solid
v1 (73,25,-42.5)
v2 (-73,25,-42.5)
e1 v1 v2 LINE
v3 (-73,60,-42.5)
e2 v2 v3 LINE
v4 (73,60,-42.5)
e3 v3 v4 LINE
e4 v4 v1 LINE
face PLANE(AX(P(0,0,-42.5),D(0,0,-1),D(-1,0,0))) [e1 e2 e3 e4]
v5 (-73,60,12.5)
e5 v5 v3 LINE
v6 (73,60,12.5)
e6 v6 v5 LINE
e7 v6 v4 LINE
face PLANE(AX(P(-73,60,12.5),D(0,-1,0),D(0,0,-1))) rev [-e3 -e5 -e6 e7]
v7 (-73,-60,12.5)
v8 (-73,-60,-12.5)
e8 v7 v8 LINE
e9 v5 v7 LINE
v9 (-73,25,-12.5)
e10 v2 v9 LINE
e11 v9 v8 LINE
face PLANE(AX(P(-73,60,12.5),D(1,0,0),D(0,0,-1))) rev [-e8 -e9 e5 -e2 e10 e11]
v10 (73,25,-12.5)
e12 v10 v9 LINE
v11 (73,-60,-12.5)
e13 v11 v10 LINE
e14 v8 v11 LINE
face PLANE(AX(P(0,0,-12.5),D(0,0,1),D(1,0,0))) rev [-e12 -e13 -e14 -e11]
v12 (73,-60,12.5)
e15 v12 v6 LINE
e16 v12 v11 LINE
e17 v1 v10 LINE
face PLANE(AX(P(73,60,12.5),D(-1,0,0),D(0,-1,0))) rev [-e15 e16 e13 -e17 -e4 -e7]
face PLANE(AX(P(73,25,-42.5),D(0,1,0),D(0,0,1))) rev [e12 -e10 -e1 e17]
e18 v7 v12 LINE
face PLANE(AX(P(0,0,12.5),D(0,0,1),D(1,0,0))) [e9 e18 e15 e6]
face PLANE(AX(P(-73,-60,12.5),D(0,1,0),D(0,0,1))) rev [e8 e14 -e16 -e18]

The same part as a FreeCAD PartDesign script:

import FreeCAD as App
import Part
import Sketcher

doc = App.newDocument("Part")
params = doc.addObject("Spreadsheet::Sheet", "Params")
for row, (alias, value) in enumerate([
    ("sketch1_width", "146 mm"),
    ("sketch1_height", "120 mm"),
    ("pad1_length", "25 mm"),
    ("sketch2_width", "146 mm"),
    ("sketch2_height", "35 mm"),
    ("pad2_length", "30 mm"),
], start=1):
    params.set(f"A{row}", alias)
    params.set(f"B{row}", "=" + value)
    params.setAlias(f"B{row}", alias)

body = doc.addObject("PartDesign::Body", "Body")

# Sketch on XY plane
sketch1 = body.newObject("Sketcher::SketchObject", "Sketch")
sketch1.AttachmentSupport = (doc.getObject("XY_Plane"), [""])
sketch1.MapMode = "FlatFace"
sketch1.addGeometry([
    Part.LineSegment(App.Vector(-73, 60, 0), App.Vector(-73, -60, 0)),
    Part.LineSegment(App.Vector(-73, -60, 0), App.Vector(73, -60, 0)),
    Part.LineSegment(App.Vector(73, -60, 0), App.Vector(73, 60, 0)),
    Part.LineSegment(App.Vector(73, 60, 0), App.Vector(-73, 60, 0)),
], False)
sketch1.addConstraint([
    Sketcher.Constraint("Coincident", 0, 2, 1, 1),
    Sketcher.Constraint("Coincident", 1, 2, 2, 1),
    Sketcher.Constraint("Coincident", 2, 2, 3, 1),
    Sketcher.Constraint("Coincident", 3, 2, 0, 1),
    Sketcher.Constraint("Vertical", 0),
    Sketcher.Constraint("Horizontal", 1),
    Sketcher.Constraint("Vertical", 2),
    Sketcher.Constraint("Horizontal", 3),
    Sketcher.Constraint("Symmetric", 0, 2, 2, 2, -1, 1),
    Sketcher.Constraint("DistanceX", 1, 1, 1, 2, 146.0),
    Sketcher.Constraint("DistanceY", 0, 2, 0, 1, 120.0),
])
sketch1.setExpression("Constraints[9]", "Params.sketch1_width")
sketch1.setExpression("Constraints[10]", "Params.sketch1_height")
pad1 = body.newObject("PartDesign::Pad", "Pad")
pad1.Profile = sketch1
pad1.setExpression("Length", "Params.pad1_length")
pad1.Midplane = True

# Sketch on XY plane
sketch2 = body.newObject("Sketcher::SketchObject", "Sketch001")
sketch2.AttachmentSupport = (doc.getObject("XY_Plane"), [""])
sketch2.MapMode = "FlatFace"
sketch2.AttachmentOffset = App.Placement(App.Vector(0, 0, -12.5), App.Rotation())
sketch2.addGeometry([
    Part.LineSegment(App.Vector(73, 60, 0), App.Vector(73, 25, 0)),
    Part.LineSegment(App.Vector(73, 25, 0), App.Vector(-73, 25, 0)),
    Part.LineSegment(App.Vector(-73, 25, 0), App.Vector(-73, 60, 0)),
    Part.LineSegment(App.Vector(-73, 60, 0), App.Vector(73, 60, 0)),
], False)
sketch2.addConstraint([
    Sketcher.Constraint("Coincident", 0, 2, 1, 1),
    Sketcher.Constraint("Coincident", 1, 2, 2, 1),
    Sketcher.Constraint("Coincident", 2, 2, 3, 1),
    Sketcher.Constraint("Coincident", 3, 2, 0, 1),
    Sketcher.Constraint("Vertical", 0),
    Sketcher.Constraint("Horizontal", 1),
    Sketcher.Constraint("Vertical", 2),
    Sketcher.Constraint("Horizontal", 3),
    Sketcher.Constraint("DistanceX", 1, 2, 1, 1, 146.0),
    Sketcher.Constraint("DistanceY", 0, 2, 0, 1, 35.0),
    Sketcher.Constraint("DistanceX", -1, 1, 0, 2, 73.0),
    Sketcher.Constraint("DistanceY", -1, 1, 0, 2, 25.0),
])
sketch2.setExpression("Constraints[8]", "Params.sketch2_width")
sketch2.setExpression("Constraints[9]", "Params.sketch2_height")
pad2 = body.newObject("PartDesign::Pad", "Pad001")
pad2.Profile = sketch2
pad2.setExpression("Length", "Params.pad2_length")
pad2.Reversed = True

doc.recompute()
